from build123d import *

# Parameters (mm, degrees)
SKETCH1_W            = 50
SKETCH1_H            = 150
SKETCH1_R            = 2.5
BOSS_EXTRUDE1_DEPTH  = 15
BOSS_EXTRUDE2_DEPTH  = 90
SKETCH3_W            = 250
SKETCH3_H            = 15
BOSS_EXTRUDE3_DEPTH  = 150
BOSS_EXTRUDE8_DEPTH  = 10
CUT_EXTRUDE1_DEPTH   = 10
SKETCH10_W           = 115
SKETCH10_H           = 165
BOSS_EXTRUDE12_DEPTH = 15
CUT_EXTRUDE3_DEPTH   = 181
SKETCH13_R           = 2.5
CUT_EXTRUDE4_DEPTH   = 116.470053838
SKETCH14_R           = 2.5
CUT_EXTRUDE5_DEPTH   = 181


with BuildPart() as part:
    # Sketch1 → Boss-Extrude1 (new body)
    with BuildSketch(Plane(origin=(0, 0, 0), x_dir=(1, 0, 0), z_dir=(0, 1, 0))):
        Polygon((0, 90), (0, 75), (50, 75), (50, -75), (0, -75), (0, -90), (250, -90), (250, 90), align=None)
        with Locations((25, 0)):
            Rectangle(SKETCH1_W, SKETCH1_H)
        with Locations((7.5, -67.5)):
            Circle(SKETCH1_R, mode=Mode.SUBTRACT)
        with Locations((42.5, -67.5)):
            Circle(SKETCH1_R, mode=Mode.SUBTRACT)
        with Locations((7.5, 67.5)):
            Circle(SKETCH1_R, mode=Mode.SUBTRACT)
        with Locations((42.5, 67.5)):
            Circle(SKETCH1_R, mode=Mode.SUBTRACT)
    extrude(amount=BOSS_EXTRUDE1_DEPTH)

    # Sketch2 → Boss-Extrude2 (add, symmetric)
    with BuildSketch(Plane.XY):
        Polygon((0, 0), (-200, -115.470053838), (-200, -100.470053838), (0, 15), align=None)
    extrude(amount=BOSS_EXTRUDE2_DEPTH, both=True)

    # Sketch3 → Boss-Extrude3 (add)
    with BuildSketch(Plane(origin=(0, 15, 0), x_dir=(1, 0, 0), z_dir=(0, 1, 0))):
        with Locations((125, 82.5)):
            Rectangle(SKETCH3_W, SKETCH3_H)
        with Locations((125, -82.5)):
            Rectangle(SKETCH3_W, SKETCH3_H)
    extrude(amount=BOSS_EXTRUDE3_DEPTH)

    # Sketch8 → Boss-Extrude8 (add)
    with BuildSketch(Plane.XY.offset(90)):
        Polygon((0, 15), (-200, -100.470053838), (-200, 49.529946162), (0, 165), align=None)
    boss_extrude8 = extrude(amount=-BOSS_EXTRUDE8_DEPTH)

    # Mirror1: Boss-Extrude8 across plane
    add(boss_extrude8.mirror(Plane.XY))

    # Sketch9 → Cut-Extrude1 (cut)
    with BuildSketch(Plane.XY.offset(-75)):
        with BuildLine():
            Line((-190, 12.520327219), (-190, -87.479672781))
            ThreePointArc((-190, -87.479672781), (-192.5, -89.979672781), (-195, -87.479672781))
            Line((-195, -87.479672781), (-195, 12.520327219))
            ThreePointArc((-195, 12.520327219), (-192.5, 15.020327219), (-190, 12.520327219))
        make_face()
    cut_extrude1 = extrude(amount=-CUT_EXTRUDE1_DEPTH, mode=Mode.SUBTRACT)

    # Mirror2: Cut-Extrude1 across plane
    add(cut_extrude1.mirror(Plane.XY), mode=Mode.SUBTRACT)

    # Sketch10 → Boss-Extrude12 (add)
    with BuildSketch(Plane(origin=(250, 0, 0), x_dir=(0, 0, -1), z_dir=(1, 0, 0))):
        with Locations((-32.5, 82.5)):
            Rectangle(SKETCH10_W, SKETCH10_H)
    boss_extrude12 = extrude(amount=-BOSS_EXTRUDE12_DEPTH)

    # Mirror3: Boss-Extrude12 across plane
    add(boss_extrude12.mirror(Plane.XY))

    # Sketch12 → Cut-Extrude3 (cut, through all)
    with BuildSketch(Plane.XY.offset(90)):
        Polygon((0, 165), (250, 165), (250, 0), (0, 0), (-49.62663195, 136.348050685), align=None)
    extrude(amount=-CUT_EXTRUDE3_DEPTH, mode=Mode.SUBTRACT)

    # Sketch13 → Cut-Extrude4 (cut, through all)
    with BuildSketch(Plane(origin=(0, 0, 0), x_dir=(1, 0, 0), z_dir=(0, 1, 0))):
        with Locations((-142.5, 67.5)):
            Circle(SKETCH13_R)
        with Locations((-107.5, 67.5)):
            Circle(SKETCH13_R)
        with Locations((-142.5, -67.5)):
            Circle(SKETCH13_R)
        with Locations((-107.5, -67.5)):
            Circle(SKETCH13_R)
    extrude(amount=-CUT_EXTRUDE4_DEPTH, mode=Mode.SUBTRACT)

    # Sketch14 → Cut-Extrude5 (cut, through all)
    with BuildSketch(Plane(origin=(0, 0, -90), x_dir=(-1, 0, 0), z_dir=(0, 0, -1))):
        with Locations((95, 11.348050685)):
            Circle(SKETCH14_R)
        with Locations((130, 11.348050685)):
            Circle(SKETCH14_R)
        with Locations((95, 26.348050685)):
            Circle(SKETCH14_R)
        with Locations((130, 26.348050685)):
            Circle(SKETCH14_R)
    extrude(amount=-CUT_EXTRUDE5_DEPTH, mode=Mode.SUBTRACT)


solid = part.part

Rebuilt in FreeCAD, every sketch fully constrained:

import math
import FreeCAD as App
import Part
import Sketcher
Q = App.Units.Quantity


def add_polygon(sketch, points):
    """Adds a closed chain of lines whose ends are joined by coincident constraints."""
    first, n = sketch.GeometryCount, len(points)
    for a, b in zip(points, points[1:] + points[:1]):
        sketch.addGeometry(Part.LineSegment(App.Vector(*a, 0), App.Vector(*b, 0)), False)
    for i in range(n):
        sketch.addConstraint(Sketcher.Constraint("Coincident", first + i, 2, first + (i + 1) % n, 1))

doc = App.newDocument("Part")
body = doc.addObject("PartDesign::Body", "Body")

# Sketch on XZ plane
sketch1 = body.newObject("Sketcher::SketchObject", "Sketch")
sketch1.AttachmentSupport = (doc.getObject("XZ_Plane"), [""])
sketch1.MapMode = "FlatFace"
add_polygon(sketch1, [(0, -90), (0, 90), (250, 90), (250, -90)])  # lines 0-3
sketch1.addGeometry(Part.Circle(App.Vector(7.5, 67.5, 0), App.Vector(0, 0, 1), 2.5), False)  # 4
sketch1.addGeometry(Part.Circle(App.Vector(42.5, 67.5, 0), App.Vector(0, 0, 1), 2.5), False)  # 5
sketch1.addGeometry(Part.Circle(App.Vector(7.5, -67.5, 0), App.Vector(0, 0, 1), 2.5), False)  # 6
sketch1.addGeometry(Part.Circle(App.Vector(42.5, -67.5, 0), App.Vector(0, 0, 1), 2.5), False)  # 7
sketch1.addConstraint(Sketcher.Constraint("Vertical", 0))
sketch1.addConstraint(Sketcher.Constraint("Horizontal", 1))
sketch1.addConstraint(Sketcher.Constraint("Vertical", 2))
sketch1.addConstraint(Sketcher.Constraint("Horizontal", 3))
sketch1.addConstraint(Sketcher.Constraint("Equal", 4, 5))
sketch1.addConstraint(Sketcher.Constraint("Equal", 5, 6))
sketch1.addConstraint(Sketcher.Constraint("Equal", 6, 7))
sketch1.addConstraint(Sketcher.Constraint("Symmetric", 0, 2, 3, 2, -1, 1))
sketch1.addConstraint(Sketcher.Constraint("Symmetric", 4, 3, 6, 3, -1))
sketch1.addConstraint(Sketcher.Constraint("Symmetric", 5, 3, 7, 3, -1))
sketch1.addConstraint(Sketcher.Constraint("Horizontal", 4, 3, 5, 3))
sketch1.addConstraint(Sketcher.Constraint("Diameter", 4, 5.0))
sketch1.addConstraint(Sketcher.Constraint("DistanceX", 1, 1, 1, 2, 250.0))
sketch1.addConstraint(Sketcher.Constraint("DistanceY", 0, 1, 0, 2, 180.0))
sketch1.addConstraint(Sketcher.Constraint("DistanceX", 4, 3, 5, 3, 35.0))
sketch1.addConstraint(Sketcher.Constraint("DistanceY", 6, 3, 4, 3, 135.0))
sketch1.addConstraint(Sketcher.Constraint("DistanceX", -1, 1, 4, 3, 7.5))
pad1 = body.newObject("PartDesign::Pad", "Pad")
pad1.Profile = sketch1
pad1.Length = 15
pad1.Reversed = True

# Sketch on XY plane
sketch2 = body.newObject("Sketcher::SketchObject", "Sketch001")
sketch2.AttachmentSupport = (doc.getObject("XY_Plane"), [""])
sketch2.MapMode = "FlatFace"
add_polygon(sketch2, [(-200, -115), (0, 0), (0, 15), (-200, -100)])  # lines 0-3
sketch2.addConstraint(Sketcher.Constraint("Vertical", 1))
sketch2.addConstraint(Sketcher.Constraint("Vertical", 3))
sketch2.addConstraint(Sketcher.Constraint("Coincident", 0, 2, -1, 1))
sketch2.addConstraint(Sketcher.Constraint("Parallel", 0, 2))
sketch2.addConstraint(Sketcher.Constraint("DistanceY", 1, 1, 1, 2, 15.0))
sketch2.addConstraint(Sketcher.Constraint("Angle", 0, Q("30 deg")))
sketch2.addConstraint(Sketcher.Constraint("DistanceX", 2, 2, -1, 1, 200.0))
pad2 = body.newObject("PartDesign::Pad", "Pad001")
pad2.Profile = sketch2
pad2.Length = 180
pad2.Midplane = True

# Sketch on XZ plane
sketch3 = body.newObject("Sketcher::SketchObject", "Sketch002")
sketch3.AttachmentSupport = (doc.getObject("XZ_Plane"), [""])
sketch3.MapMode = "FlatFace"
sketch3.AttachmentOffset = App.Placement(App.Vector(0, 0, -15), App.Rotation())
add_polygon(sketch3, [(0, -90), (0, -75), (250, -75), (250, -90)])  # lines 0-3
add_polygon(sketch3, [(0, 75), (0, 90), (250, 90), (250, 75)])  # lines 4-7
sketch3.addConstraint(Sketcher.Constraint("Vertical", 0))
sketch3.addConstraint(Sketcher.Constraint("Horizontal", 1))
sketch3.addConstraint(Sketcher.Constraint("Vertical", 2))
sketch3.addConstraint(Sketcher.Constraint("Horizontal", 3))
sketch3.addConstraint(Sketcher.Constraint("Vertical", 4))
sketch3.addConstraint(Sketcher.Constraint("Horizontal", 5))
sketch3.addConstraint(Sketcher.Constraint("Vertical", 6))
sketch3.addConstraint(Sketcher.Constraint("Horizontal", 7))
sketch3.addConstraint(Sketcher.Constraint("Symmetric", 3, 2, 4, 2, -1, 1))
sketch3.addConstraint(Sketcher.Constraint("Symmetric", 1, 2, 6, 2, -1))
sketch3.addConstraint(Sketcher.Constraint("PointOnObject", 0, 2, -2))
sketch3.addConstraint(Sketcher.Constraint("DistanceX", 1, 1, 1, 2, 250.0))
sketch3.addConstraint(Sketcher.Constraint("DistanceY", 0, 1, 0, 2, 15.0))
sketch3.addConstraint(Sketcher.Constraint("DistanceY", 0, 2, -1, 1, 75.0))
pad3 = body.newObject("PartDesign::Pad", "Pad002")
pad3.Profile = sketch3
pad3.Length = 150
pad3.Reversed = True

# Sketch on XY plane
sketch4 = body.newObject("Sketcher::SketchObject", "Sketch003")
sketch4.AttachmentSupport = (doc.getObject("XY_Plane"), [""])
sketch4.MapMode = "FlatFace"
sketch4.AttachmentOffset = App.Placement(App.Vector(0, 0, 90), App.Rotation())
add_polygon(sketch4, [(-200, -100), (0, 15), (0, 165), (-200, 50)])  # lines 0-3
sketch4.addConstraint(Sketcher.Constraint("Vertical", 1))
sketch4.addConstraint(Sketcher.Constraint("Vertical", 3))
sketch4.addConstraint(Sketcher.Constraint("PointOnObject", 0, 2, -2))
sketch4.addConstraint(Sketcher.Constraint("Parallel", 0, 2))
sketch4.addConstraint(Sketcher.Constraint("DistanceY", 1, 1, 1, 2, 150.0))
sketch4.addConstraint(Sketcher.Constraint("Angle", 0, Q("30 deg")))
sketch4.addConstraint(Sketcher.Constraint("DistanceY", -1, 1, 0, 2, 15.0))
sketch4.addConstraint(Sketcher.Constraint("DistanceX", 2, 2, -1, 1, 200.0))
pad4 = body.newObject("PartDesign::Pad", "Pad003")
pad4.Profile = sketch4
pad4.Length = 10
pad4.Reversed = True
doc.recompute()

mirrored = body.newObject("PartDesign::Mirrored", "Mirrored")
mirrored.Originals = [pad4]
mirrored.MirrorPlane = (doc.getObject("XY_Plane"), [""])
body.Tip = mirrored

# Sketch on XY plane
sketch5 = body.newObject("Sketcher::SketchObject", "Sketch004")
sketch5.AttachmentSupport = (doc.getObject("XY_Plane"), [""])
sketch5.MapMode = "FlatFace"
sketch5.AttachmentOffset = App.Placement(App.Vector(0, 0, -75), App.Rotation())
sketch5.addGeometry(Part.LineSegment(App.Vector(-190, -87.5, 0), App.Vector(-190, 12.5, 0)), False)
sketch5.addGeometry(Part.ArcOfCircle(Part.Circle(App.Vector(-192.5, 12.5, 0), App.Vector(0, 0, 1), 2.5), math.radians(0), math.radians(180)), False)
sketch5.addGeometry(Part.LineSegment(App.Vector(-195, 12.5, 0), App.Vector(-195, -87.5, 0)), False)
sketch5.addGeometry(Part.ArcOfCircle(Part.Circle(App.Vector(-192.5, -87.5, 0), App.Vector(0, 0, 1), 2.5), math.radians(180), math.radians(360)), False)
sketch5.addConstraint(Sketcher.Constraint("Tangent", 0, 2, 1, 1))
sketch5.addConstraint(Sketcher.Constraint("Tangent", 1, 2, 2, 1))
sketch5.addConstraint(Sketcher.Constraint("Tangent", 2, 2, 3, 1))
sketch5.addConstraint(Sketcher.Constraint("Tangent", 3, 2, 0, 1))
sketch5.addConstraint(Sketcher.Constraint("Vertical", 0))
sketch5.addConstraint(Sketcher.Constraint("Vertical", 2))
sketch5.addConstraint(Sketcher.Constraint("Radius", 1, 2.5))
sketch5.addConstraint(Sketcher.Constraint("DistanceY", 0, 1, 0, 2, 100.0))
sketch5.addConstraint(Sketcher.Constraint("DistanceX", 0, 2, -1, 1, 190.0))
sketch5.addConstraint(Sketcher.Constraint("DistanceY", -1, 1, 1, 3, 12.520327))
pocket1 = body.newObject("PartDesign::Pocket", "Pocket")
pocket1.Profile = sketch5
pocket1.Length = 10
doc.recompute()

mirrored2 = body.newObject("PartDesign::Mirrored", "Mirrored001")
mirrored2.Originals = [pocket1]
mirrored2.MirrorPlane = (doc.getObject("XY_Plane"), [""])
body.Tip = mirrored2

# Sketch on YZ plane
sketch6 = body.newObject("Sketcher::SketchObject", "Sketch005")
sketch6.AttachmentSupport = (doc.getObject("YZ_Plane"), [""])
sketch6.MapMode = "FlatFace"
sketch6.AttachmentOffset = App.Placement(App.Vector(0, 0, 250), App.Rotation())
add_polygon(sketch6, [(165, 90), (0, 90), (0, -25), (165, -25)])  # lines 0-3
sketch6.addConstraint(Sketcher.Constraint("Horizontal", 0))
sketch6.addConstraint(Sketcher.Constraint("Vertical", 1))
sketch6.addConstraint(Sketcher.Constraint("Horizontal", 2))
sketch6.addConstraint(Sketcher.Constraint("Vertical", 3))
sketch6.addConstraint(Sketcher.Constraint("PointOnObject", 0, 2, -2))
sketch6.addConstraint(Sketcher.Constraint("DistanceX", 0, 2, 0, 1, 165.0))
sketch6.addConstraint(Sketcher.Constraint("DistanceY", 1, 2, 1, 1, 115.0))
sketch6.addConstraint(Sketcher.Constraint("DistanceY", -1, 1, 0, 2, 90.0))
pad5 = body.newObject("PartDesign::Pad", "Pad004")
pad5.Profile = sketch6
pad5.Length = 15
pad5.Reversed = True
doc.recompute()

mirrored3 = body.newObject("PartDesign::Mirrored", "Mirrored002")
mirrored3.Originals = [pad5]
mirrored3.MirrorPlane = (doc.getObject("XY_Plane"), [""])
body.Tip = mirrored3

# Sketch on XY plane
sketch7 = body.newObject("Sketcher::SketchObject", "Sketch006")
sketch7.AttachmentSupport = (doc.getObject("XY_Plane"), [""])
sketch7.MapMode = "FlatFace"
sketch7.AttachmentOffset = App.Placement(App.Vector(0, 0, 90), App.Rotation())
add_polygon(sketch7, [(250, 165), (0, 165), (-50, 136), (0, 0), (250, 0)])  # lines 0-4
sketch7.addConstraint(Sketcher.Constraint("Horizontal", 0))
sketch7.addConstraint(Sketcher.Constraint("Horizontal", 3))
sketch7.addConstraint(Sketcher.Constraint("Vertical", 4))
sketch7.addConstraint(Sketcher.Constraint("Coincident", 2, 2, -1, 1))
sketch7.addConstraint(Sketcher.Constraint("PointOnObject", 0, 2, -2))
sketch7.addConstraint(Sketcher.Constraint("DistanceX", 0, 2, 0, 1, 250.0))
sketch7.addConstraint(Sketcher.Constraint("DistanceY", 4, 1, 4, 2, 165.0))
sketch7.addConstraint(Sketcher.Constraint("Angle", 1, Q("-150 deg")))
sketch7.addConstraint(Sketcher.Constraint("Angle", 2, Q("-70 deg")))
pocket2 = body.newObject("PartDesign::Pocket", "Pocket001")
pocket2.Profile = sketch7
pocket2.Type = "ThroughAll"

# Sketch on XZ plane
sketch8 = body.newObject("Sketcher::SketchObject", "Sketch007")
sketch8.AttachmentSupport = (doc.getObject("XZ_Plane"), [""])
sketch8.MapMode = "FlatFace"
sketch8.addGeometry(Part.Circle(App.Vector(-142.5, -67.5, 0), App.Vector(0, 0, 1), 2.5), False)
sketch8.addGeometry(Part.Circle(App.Vector(-107.5, -67.5, 0), App.Vector(0, 0, 1), 2.5), False)
sketch8.addGeometry(Part.Circle(App.Vector(-142.5, 67.5, 0), App.Vector(0, 0, 1), 2.5), False)
sketch8.addGeometry(Part.Circle(App.Vector(-107.5, 67.5, 0), App.Vector(0, 0, 1), 2.5), False)
sketch8.addConstraint(Sketcher.Constraint("Equal", 0, 1))
sketch8.addConstraint(Sketcher.Constraint("Equal", 1, 2))
sketch8.addConstraint(Sketcher.Constraint("Equal", 2, 3))
sketch8.addConstraint(Sketcher.Constraint("Symmetric", 0, 3, 2, 3, -1))
sketch8.addConstraint(Sketcher.Constraint("Symmetric", 1, 3, 3, 3, -1))
sketch8.addConstraint(Sketcher.Constraint("Horizontal", 0, 3, 1, 3))
sketch8.addConstraint(Sketcher.Constraint("Diameter", 0, 5.0))
sketch8.addConstraint(Sketcher.Constraint("DistanceX", 0, 3, 1, 3, 35.0))
sketch8.addConstraint(Sketcher.Constraint("DistanceY", 0, 3, 2, 3, 135.0))
sketch8.addConstraint(Sketcher.Constraint("DistanceX", 0, 3, -1, 1, 142.5))
pocket3 = body.newObject("PartDesign::Pocket", "Pocket002")
pocket3.Profile = sketch8
pocket3.Type = "ThroughAll"
pocket3.Reversed = True

# Sketch on XY plane
sketch9 = body.newObject("Sketcher::SketchObject", "Sketch008")
sketch9.AttachmentSupport = (doc.getObject("XY_Plane"), [""])
sketch9.MapMode = "FlatFace"
sketch9.AttachmentOffset = App.Placement(App.Vector(0, 0, -90), App.Rotation())
sketch9.addGeometry(Part.Circle(App.Vector(-95, 11.3, 0), App.Vector(0, 0, 1), 2.5), False)
sketch9.addGeometry(Part.Circle(App.Vector(-130, 11.3, 0), App.Vector(0, 0, 1), 2.5), False)
sketch9.addGeometry(Part.Circle(App.Vector(-95, 26.3, 0), App.Vector(0, 0, 1), 2.5), False)
sketch9.addGeometry(Part.Circle(App.Vector(-130, 26.3, 0), App.Vector(0, 0, 1), 2.5), False)
sketch9.addConstraint(Sketcher.Constraint("Equal", 0, 1))
sketch9.addConstraint(Sketcher.Constraint("Equal", 1, 2))
sketch9.addConstraint(Sketcher.Constraint("Equal", 2, 3))
sketch9.addConstraint(Sketcher.Constraint("Horizontal", 0, 3, 1, 3))
sketch9.addConstraint(Sketcher.Constraint("Horizontal", 2, 3, 3, 3))
sketch9.addConstraint(Sketcher.Constraint("Vertical", 0, 3, 2, 3))
sketch9.addConstraint(Sketcher.Constraint("Vertical", 1, 3, 3, 3))
sketch9.addConstraint(Sketcher.Constraint("Diameter", 0, 5.0))
sketch9.addConstraint(Sketcher.Constraint("DistanceX", 0, 3, -1, 1, 95.0))
sketch9.addConstraint(Sketcher.Constraint("DistanceX", 1, 3, -1, 1, 130.0))
sketch9.addConstraint(Sketcher.Constraint("DistanceY", 0, 3, 2, 3, 15.0))
sketch9.addConstraint(Sketcher.Constraint("DistanceY", -1, 1, 0, 3, 11.348051))
pocket4 = body.newObject("PartDesign::Pocket", "Pocket003")
pocket4.Profile = sketch9
pocket4.Type = "ThroughAll"
pocket4.Reversed = True

doc.recompute()
